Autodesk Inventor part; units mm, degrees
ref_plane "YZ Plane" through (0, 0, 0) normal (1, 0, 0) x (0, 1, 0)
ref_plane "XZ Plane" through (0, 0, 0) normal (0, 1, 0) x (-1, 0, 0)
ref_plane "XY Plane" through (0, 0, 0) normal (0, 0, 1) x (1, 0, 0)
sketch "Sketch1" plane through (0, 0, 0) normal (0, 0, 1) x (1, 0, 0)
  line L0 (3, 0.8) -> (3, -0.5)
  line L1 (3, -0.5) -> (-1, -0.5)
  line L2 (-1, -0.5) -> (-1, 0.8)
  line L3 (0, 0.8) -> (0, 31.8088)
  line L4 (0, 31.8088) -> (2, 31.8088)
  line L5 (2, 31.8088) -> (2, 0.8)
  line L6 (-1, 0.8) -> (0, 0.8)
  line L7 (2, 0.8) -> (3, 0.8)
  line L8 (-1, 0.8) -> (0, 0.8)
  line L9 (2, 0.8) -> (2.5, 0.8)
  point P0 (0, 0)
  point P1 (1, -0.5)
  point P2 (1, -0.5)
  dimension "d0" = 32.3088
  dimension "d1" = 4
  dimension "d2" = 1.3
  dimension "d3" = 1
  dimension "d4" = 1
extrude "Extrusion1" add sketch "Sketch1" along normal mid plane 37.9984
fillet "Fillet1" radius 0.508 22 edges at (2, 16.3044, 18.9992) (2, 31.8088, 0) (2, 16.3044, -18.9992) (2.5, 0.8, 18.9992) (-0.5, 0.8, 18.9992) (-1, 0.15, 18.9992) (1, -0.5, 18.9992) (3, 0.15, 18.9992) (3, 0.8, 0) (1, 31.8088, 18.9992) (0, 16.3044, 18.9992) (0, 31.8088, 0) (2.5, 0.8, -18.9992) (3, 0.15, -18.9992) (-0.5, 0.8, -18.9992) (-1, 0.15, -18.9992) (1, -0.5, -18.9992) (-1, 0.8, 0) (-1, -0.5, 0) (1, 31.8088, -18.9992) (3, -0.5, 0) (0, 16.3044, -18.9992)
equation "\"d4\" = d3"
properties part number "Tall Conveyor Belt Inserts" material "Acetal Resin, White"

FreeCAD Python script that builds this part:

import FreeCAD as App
import Part
import Sketcher
from FreeCAD import Vector


def edges_at(feature, points):
    """Names of the edges that pass closest to the given points."""
    edges = feature.Shape.Edges
    near = lambda p: min(range(len(edges)), key=lambda i: edges[i].distToShape(Part.Vertex(*p))[0])
    return sorted({f"Edge{near(p) + 1}" for p in points})


def add_polygon(sketch, points):
    """Adds a closed chain of lines whose ends are joined by coincident constraints."""
    first, n = sketch.GeometryCount, len(points)
    for a, b in zip(points, points[1:] + points[:1]):
        sketch.addGeometry(Part.LineSegment(App.Vector(*a, 0), App.Vector(*b, 0)), False)
    for i in range(n):
        sketch.addConstraint(Sketcher.Constraint("Coincident", first + i, 2, first + (i + 1) % n, 1))

doc = App.newDocument("Part")
params = doc.addObject("Spreadsheet::Sheet", "Params")
for row, (alias, value) in enumerate([
    ("sketch1_width", "1 mm"),
    ("sketch1_width2", "4 mm"),
    ("sketch1_height", "1.3 mm"),
    ("pad1_length", "37.9984 mm"),
    ("fillet_radius", "0.508 mm"),
], start=1):
    params.set(f"A{row}", alias)
    params.set(f"B{row}", "=" + value)
    params.setAlias(f"B{row}", alias)

body = doc.addObject("PartDesign::Body", "Body")

sketch1 = body.newObject("Sketcher::SketchObject", "Sketch")
sketch1.AttachmentSupport = (doc.getObject("XY_Plane"), [""])
sketch1.MapMode = "FlatFace"
add_polygon(sketch1, [(3, -0.5), (3, 0.8), (2, 0.8), (2, 31.8), (0, 31.8), (0, 0.8), (-1, 0.8), (-1, -0.5)])
sketch1.addConstraint(Sketcher.Constraint("Vertical", 0))
sketch1.addConstraint(Sketcher.Constraint("Horizontal", 1))
sketch1.addConstraint(Sketcher.Constraint("Vertical", 2))
sketch1.addConstraint(Sketcher.Constraint("Horizontal", 3))
sketch1.addConstraint(Sketcher.Constraint("Vertical", 4))
sketch1.addConstraint(Sketcher.Constraint("Horizontal", 5))
sketch1.addConstraint(Sketcher.Constraint("Vertical", 6))
sketch1.addConstraint(Sketcher.Constraint("Horizontal", 7))
sketch1.addConstraint(Sketcher.Constraint("PointOnObject", 3, 2, -2))
sketch1.addConstraint(Sketcher.Constraint("Horizontal", 1, 2, 4, 2))
sketch1.addConstraint(Sketcher.Constraint("Equal", 1, 5))
sketch1.addConstraint(Sketcher.Constraint("DistanceX", 1, 2, 1, 1, 1.0))
sketch1.addConstraint(Sketcher.Constraint("DistanceX", 7, 1, 7, 2, 4.0))
sketch1.addConstraint(Sketcher.Constraint("DistanceY", 0, 1, 0, 2, 1.3))
sketch1.addConstraint(Sketcher.Constraint("DistanceY", -1, 1, 0, 2, 0.8))
sketch1.addConstraint(Sketcher.Constraint("DistanceY", 6, 2, 3, 2, 32.3088))
sketch1.setExpression("Constraints[19]", "Params.sketch1_width")
sketch1.setExpression("Constraints[20]", "Params.sketch1_width2")
sketch1.setExpression("Constraints[21]", "Params.sketch1_height")
pad1 = body.newObject("PartDesign::Pad", "Pad")
pad1.Profile = sketch1
pad1.setExpression("Length", "Params.pad1_length")
pad1.Midplane = True
doc.recompute()

fillet = body.newObject("PartDesign::Fillet", "Fillet")
fillet.Base = (pad1, edges_at(pad1, [
    (2, 16.304, 18.999),
    (2, 31.809, 0),
    (2, 16.304, -18.999),
    (2.5, 0.8, 18.999),
    (-0.5, 0.8, 18.999),
    (-1, 0.15, 18.999),
    (1, -0.5, 18.999),
    (3, 0.15, 18.999),
    (3, 0.8, 0),
    (1, 31.809, 18.999),
    (0, 16.304, 18.999),
    (0, 31.809, 0),
    (2.5, 0.8, -18.999),
    (3, 0.15, -18.999),
    (-0.5, 0.8, -18.999),
    (-1, 0.15, -18.999),
    (1, -0.5, -18.999),
    (-1, 0.8, 0),
    (-1, -0.5, 0),
    (1, 31.809, -18.999),
    (3, -0.5, 0),
    (0, 16.304, -18.999),
]))
fillet.setExpression("Radius", "Params.fillet_radius")

doc.recompute()
